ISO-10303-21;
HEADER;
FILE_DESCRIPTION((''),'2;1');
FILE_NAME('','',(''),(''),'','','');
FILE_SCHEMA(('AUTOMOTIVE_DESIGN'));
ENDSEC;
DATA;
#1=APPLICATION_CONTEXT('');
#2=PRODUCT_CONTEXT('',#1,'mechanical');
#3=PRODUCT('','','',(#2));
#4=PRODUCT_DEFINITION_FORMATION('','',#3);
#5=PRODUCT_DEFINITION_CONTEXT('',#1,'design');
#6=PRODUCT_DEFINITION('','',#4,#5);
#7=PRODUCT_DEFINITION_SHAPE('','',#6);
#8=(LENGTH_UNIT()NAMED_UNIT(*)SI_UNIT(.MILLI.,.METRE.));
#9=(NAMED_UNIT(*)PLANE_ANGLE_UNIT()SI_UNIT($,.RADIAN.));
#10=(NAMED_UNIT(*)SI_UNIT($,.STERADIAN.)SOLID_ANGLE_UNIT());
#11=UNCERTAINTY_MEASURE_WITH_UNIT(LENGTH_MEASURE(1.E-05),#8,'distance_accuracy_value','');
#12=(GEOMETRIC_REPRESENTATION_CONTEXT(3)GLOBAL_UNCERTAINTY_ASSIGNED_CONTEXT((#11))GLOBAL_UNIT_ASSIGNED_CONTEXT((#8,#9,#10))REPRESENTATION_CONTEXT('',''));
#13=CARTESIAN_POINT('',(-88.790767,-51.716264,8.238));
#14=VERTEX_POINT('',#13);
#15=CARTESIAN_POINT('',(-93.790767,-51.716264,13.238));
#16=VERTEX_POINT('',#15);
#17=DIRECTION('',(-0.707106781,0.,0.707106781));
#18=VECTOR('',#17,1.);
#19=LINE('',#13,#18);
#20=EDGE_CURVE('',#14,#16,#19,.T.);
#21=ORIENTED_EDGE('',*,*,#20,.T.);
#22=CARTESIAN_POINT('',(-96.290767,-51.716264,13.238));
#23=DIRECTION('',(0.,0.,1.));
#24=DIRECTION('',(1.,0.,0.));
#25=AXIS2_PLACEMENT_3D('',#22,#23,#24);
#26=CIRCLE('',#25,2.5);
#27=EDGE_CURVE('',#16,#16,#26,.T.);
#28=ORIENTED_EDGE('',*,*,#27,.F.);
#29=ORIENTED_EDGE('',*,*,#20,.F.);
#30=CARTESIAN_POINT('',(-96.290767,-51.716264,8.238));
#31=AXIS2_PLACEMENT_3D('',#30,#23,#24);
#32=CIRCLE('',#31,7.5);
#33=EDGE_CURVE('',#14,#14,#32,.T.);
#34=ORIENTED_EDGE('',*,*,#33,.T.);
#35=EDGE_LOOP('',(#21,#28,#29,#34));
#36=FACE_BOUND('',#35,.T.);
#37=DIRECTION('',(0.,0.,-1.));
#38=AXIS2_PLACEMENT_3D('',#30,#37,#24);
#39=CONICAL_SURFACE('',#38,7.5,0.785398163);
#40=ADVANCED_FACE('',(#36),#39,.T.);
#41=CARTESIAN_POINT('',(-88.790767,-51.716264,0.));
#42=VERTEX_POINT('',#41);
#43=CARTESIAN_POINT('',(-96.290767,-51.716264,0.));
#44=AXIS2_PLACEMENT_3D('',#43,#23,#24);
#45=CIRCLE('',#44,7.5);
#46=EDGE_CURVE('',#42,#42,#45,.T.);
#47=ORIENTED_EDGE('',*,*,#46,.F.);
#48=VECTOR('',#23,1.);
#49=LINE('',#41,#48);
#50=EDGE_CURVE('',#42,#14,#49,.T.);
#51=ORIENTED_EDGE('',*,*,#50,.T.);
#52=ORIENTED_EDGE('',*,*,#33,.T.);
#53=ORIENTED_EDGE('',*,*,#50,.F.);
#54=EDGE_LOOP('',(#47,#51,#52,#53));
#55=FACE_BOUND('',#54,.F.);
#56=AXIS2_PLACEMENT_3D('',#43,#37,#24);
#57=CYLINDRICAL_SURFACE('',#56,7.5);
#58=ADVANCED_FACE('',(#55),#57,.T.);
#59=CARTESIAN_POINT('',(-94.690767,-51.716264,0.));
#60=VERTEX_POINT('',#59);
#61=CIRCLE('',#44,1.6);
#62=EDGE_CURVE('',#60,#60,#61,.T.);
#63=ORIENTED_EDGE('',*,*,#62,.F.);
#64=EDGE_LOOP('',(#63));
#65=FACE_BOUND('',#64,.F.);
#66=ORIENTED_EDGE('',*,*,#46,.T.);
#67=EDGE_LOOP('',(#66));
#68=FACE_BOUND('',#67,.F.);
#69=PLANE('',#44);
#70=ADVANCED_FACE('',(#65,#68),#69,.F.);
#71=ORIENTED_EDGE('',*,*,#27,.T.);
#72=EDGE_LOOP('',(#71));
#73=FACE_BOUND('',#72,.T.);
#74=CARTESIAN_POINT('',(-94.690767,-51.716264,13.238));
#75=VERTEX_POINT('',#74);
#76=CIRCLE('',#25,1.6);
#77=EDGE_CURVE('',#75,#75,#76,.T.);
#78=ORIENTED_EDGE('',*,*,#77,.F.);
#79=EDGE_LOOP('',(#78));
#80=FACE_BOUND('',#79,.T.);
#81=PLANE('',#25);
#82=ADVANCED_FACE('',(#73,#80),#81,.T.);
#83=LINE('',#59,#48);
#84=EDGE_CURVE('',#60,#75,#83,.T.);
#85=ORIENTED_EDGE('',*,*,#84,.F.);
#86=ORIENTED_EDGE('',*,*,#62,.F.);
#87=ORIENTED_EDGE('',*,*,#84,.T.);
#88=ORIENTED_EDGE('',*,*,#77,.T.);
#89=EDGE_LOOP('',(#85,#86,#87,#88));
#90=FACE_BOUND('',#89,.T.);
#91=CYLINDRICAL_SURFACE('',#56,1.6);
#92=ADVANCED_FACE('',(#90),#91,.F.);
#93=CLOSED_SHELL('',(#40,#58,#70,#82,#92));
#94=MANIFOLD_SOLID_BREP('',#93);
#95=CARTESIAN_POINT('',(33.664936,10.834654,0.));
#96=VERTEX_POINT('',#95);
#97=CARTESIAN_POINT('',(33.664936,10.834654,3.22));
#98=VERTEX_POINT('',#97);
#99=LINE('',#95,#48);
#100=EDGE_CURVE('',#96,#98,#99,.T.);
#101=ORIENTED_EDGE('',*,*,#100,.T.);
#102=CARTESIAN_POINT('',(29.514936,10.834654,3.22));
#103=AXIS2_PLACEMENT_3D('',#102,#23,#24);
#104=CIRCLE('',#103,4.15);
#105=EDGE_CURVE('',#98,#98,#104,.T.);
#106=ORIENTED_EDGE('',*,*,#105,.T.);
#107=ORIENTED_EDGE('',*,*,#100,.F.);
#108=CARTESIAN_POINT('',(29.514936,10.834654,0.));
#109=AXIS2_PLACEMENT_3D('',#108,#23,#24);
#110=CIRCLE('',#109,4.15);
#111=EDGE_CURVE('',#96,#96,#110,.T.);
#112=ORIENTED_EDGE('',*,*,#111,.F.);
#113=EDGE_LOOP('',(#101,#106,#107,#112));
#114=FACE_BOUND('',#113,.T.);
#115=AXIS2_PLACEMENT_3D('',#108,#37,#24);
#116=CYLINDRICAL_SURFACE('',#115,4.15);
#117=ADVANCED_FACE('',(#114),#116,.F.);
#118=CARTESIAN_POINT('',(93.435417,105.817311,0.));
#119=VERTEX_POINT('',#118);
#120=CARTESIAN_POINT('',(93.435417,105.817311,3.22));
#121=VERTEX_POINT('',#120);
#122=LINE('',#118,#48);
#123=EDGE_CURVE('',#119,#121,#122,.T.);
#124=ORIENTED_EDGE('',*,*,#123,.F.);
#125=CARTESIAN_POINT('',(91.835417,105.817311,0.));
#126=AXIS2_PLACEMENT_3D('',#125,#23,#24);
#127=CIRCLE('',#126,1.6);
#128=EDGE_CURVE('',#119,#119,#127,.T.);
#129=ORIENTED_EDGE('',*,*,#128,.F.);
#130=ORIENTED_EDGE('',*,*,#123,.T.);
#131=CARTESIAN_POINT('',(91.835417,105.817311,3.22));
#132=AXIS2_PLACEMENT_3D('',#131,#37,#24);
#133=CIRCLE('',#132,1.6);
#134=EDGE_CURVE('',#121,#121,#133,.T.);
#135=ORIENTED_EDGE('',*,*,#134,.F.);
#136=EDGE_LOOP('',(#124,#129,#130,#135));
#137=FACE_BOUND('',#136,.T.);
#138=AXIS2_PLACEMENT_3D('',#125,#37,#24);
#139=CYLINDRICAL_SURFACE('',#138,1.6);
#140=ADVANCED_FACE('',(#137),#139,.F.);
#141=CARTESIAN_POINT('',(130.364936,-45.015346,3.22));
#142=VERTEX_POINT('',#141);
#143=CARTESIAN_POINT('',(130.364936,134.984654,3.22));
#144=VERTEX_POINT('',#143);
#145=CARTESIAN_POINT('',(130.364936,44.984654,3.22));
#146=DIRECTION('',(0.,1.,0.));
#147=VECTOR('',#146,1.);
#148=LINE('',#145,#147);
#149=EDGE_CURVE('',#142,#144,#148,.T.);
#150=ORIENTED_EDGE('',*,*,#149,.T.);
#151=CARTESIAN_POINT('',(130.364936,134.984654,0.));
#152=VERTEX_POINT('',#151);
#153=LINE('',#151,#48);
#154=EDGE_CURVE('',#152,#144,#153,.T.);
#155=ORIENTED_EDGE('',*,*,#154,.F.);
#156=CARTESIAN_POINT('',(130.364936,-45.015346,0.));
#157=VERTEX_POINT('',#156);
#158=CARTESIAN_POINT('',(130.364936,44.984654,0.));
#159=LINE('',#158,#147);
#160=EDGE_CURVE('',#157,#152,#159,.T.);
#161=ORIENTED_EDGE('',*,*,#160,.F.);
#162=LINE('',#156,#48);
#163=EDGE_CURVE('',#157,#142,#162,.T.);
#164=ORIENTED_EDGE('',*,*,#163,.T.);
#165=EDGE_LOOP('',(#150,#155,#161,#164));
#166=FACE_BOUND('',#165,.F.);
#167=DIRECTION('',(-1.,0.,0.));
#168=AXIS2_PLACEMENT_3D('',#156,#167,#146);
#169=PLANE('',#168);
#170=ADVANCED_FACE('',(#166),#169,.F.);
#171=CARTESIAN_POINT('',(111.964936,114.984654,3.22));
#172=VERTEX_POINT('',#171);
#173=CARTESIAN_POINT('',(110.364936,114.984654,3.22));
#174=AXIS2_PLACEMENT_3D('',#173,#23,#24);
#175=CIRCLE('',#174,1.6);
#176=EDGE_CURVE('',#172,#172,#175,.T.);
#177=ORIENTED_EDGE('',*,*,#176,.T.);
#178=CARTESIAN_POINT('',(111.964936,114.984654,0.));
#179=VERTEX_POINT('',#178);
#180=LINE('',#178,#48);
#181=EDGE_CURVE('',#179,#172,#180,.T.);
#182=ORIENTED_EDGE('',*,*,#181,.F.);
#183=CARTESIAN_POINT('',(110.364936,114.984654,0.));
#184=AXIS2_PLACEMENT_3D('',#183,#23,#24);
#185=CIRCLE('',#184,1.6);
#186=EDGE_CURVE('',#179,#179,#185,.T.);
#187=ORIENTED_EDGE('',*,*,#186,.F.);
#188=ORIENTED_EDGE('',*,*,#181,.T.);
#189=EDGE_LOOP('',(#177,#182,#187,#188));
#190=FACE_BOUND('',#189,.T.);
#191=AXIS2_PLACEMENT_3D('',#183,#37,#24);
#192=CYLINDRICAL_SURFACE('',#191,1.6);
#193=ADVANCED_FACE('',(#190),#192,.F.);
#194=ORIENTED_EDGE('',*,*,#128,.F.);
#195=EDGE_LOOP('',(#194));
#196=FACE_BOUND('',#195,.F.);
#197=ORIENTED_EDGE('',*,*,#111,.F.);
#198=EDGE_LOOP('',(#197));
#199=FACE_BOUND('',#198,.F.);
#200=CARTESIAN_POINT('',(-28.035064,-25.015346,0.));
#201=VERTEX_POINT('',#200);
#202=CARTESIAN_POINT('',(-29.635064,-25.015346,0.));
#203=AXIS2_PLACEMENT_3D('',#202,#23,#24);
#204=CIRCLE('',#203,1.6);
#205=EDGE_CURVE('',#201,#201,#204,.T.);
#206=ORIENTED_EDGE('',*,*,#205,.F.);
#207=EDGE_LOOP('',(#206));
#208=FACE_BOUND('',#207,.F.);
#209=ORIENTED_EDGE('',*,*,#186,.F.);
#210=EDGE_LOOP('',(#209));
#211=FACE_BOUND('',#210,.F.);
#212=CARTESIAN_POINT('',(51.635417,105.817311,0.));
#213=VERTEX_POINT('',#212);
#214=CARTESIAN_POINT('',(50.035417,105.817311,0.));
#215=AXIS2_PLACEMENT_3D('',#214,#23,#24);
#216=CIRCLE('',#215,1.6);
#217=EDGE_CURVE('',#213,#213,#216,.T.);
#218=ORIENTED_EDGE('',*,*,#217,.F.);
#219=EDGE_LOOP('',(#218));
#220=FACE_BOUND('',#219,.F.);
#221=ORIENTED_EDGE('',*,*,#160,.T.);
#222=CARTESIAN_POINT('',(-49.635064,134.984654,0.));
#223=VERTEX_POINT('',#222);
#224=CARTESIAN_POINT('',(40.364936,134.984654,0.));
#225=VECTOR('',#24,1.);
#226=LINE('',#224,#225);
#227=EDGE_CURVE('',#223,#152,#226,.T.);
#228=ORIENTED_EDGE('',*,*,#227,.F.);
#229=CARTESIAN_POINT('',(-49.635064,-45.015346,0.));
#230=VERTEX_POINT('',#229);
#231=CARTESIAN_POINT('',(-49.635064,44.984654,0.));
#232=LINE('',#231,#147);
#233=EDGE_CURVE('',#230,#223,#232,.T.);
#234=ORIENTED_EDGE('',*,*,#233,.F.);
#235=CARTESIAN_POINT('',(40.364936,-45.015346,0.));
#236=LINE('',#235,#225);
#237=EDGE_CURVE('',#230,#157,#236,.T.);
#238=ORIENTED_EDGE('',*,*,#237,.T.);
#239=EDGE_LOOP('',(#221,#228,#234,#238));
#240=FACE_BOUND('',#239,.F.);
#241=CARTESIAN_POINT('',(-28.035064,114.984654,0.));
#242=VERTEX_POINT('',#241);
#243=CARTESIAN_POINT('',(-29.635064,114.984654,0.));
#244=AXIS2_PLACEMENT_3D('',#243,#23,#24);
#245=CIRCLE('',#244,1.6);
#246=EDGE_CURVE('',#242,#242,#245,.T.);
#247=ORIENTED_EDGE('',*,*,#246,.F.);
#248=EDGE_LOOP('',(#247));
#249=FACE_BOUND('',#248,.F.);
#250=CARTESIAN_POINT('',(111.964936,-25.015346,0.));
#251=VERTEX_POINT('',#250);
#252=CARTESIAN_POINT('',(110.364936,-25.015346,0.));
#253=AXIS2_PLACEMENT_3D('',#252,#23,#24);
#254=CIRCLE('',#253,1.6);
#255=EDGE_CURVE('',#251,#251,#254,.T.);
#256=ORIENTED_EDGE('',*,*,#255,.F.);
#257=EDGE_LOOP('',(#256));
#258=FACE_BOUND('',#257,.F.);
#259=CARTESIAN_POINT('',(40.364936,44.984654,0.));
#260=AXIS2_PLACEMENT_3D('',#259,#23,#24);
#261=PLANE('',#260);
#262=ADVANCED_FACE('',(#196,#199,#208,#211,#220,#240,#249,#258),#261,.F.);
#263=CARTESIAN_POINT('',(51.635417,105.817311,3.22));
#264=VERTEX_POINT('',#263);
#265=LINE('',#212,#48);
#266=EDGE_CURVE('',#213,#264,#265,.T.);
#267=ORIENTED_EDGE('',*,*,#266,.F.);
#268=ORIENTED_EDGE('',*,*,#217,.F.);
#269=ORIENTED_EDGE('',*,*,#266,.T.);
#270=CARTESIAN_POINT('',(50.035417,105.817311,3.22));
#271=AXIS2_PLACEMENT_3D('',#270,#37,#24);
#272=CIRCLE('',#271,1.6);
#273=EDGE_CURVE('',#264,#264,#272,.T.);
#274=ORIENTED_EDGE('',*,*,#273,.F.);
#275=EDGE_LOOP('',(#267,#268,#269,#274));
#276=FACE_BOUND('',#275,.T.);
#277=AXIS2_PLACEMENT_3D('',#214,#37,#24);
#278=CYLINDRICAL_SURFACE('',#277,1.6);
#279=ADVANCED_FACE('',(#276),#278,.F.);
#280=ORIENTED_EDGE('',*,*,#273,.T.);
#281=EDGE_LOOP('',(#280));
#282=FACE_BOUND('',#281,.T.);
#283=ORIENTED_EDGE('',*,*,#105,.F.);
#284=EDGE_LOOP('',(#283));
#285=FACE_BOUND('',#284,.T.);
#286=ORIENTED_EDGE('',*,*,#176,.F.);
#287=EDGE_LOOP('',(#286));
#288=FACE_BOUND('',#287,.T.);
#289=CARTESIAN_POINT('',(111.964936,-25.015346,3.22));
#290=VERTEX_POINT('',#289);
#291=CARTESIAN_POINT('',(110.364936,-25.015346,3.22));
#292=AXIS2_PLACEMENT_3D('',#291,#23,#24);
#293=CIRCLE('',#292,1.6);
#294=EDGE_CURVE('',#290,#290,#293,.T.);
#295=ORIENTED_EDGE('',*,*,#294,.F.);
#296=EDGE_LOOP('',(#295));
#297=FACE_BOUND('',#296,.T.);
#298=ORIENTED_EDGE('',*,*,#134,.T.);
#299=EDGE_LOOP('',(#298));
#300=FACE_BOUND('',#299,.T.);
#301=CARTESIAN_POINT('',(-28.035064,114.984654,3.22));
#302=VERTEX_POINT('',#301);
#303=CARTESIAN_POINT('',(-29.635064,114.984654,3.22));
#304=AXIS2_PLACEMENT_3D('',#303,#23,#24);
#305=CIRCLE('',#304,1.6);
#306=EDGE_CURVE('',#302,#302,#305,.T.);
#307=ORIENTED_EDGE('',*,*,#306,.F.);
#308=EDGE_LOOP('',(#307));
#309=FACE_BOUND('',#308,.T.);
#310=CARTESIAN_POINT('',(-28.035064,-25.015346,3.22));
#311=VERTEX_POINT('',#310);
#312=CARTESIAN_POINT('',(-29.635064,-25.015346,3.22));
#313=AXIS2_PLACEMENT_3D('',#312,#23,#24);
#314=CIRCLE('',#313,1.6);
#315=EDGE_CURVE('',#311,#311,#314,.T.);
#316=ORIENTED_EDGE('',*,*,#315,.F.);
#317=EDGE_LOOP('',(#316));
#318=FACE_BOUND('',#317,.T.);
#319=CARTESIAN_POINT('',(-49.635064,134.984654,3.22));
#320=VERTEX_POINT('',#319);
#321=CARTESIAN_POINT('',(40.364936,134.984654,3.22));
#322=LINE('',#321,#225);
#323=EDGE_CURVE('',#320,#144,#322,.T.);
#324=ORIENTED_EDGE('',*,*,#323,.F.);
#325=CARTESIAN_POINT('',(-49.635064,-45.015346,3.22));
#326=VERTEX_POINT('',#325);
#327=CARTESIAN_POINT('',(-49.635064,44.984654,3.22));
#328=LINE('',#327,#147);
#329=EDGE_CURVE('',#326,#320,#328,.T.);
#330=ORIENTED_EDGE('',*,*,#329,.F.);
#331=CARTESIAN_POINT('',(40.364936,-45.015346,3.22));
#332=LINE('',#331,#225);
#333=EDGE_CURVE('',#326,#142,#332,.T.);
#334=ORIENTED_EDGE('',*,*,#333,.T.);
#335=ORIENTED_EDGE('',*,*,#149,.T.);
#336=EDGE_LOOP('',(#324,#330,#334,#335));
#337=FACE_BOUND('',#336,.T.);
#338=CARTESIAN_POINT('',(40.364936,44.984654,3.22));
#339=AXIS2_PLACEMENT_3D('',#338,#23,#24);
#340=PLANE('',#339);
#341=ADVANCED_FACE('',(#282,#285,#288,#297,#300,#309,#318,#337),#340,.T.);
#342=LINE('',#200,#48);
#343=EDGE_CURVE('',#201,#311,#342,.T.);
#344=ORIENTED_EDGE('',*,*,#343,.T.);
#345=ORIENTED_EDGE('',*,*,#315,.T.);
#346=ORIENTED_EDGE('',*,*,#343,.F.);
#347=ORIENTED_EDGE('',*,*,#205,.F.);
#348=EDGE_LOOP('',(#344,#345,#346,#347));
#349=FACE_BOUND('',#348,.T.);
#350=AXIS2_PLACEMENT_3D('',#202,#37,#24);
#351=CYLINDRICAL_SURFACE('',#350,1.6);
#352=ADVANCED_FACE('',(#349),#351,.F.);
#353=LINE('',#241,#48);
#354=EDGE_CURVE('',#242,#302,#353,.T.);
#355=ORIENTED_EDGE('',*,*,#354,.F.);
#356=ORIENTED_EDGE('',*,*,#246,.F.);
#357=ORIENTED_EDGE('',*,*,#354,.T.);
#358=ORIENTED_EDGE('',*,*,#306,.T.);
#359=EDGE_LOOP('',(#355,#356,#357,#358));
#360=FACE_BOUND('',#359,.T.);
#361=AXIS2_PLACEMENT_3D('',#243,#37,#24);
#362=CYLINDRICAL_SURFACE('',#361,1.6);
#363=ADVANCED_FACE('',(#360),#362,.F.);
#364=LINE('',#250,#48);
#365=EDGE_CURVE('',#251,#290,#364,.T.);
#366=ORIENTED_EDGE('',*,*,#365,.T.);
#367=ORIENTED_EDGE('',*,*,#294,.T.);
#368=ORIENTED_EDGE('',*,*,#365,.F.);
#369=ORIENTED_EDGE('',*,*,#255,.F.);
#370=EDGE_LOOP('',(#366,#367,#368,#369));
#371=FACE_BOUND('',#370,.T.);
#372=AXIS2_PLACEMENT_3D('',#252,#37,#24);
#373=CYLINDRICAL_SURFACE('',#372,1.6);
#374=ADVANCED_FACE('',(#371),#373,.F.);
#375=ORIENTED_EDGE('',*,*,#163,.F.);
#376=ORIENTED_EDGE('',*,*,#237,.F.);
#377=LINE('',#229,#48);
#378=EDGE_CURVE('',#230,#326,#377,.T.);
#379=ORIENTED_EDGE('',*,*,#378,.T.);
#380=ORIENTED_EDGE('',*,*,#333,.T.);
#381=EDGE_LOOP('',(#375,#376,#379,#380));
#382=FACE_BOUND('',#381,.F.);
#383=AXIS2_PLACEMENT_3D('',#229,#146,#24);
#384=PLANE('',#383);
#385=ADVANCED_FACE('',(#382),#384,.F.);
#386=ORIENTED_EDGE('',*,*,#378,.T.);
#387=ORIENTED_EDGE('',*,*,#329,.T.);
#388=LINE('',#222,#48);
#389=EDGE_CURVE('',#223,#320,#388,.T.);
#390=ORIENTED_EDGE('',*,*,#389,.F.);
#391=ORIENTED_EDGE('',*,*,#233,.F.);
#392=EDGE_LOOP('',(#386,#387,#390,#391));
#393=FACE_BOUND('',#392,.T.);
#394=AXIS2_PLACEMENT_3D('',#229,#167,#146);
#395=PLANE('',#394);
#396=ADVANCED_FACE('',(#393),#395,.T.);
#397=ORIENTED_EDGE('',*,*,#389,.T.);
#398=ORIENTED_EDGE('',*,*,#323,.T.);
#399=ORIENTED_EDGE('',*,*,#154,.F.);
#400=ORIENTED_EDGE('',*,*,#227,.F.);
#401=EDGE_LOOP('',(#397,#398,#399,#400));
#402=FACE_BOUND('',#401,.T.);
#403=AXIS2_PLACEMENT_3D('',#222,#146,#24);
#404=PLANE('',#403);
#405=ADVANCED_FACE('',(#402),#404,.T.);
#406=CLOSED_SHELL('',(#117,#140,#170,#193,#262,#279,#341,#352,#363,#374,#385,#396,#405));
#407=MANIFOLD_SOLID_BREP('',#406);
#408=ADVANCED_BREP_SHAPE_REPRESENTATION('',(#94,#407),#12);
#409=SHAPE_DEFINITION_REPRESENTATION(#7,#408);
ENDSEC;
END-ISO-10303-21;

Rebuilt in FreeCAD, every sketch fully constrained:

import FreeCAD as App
import Part
import Sketcher
from FreeCAD import Vector
Q = App.Units.Quantity


def edges_at(feature, points):
    """Names of the edges that pass closest to the given points."""
    edges = feature.Shape.Edges
    near = lambda p: min(range(len(edges)), key=lambda i: edges[i].distToShape(Part.Vertex(*p))[0])
    return sorted({f"Edge{near(p) + 1}" for p in points})

doc = App.newDocument("Part")
body = doc.addObject("PartDesign::Body", "Body")

# Sketch on XY plane
sketch1 = body.newObject("Sketcher::SketchObject", "Sketch")
sketch1.AttachmentSupport = (doc.getObject("XY_Plane"), [""])
sketch1.MapMode = "FlatFace"
sketch1.addGeometry([
    Part.LineSegment(Vector(-49.6, 135, 0), Vector(-49.6, -45, 0)),  # 0
    Part.LineSegment(Vector(-49.6, -45, 0), Vector(130.4, -45, 0)),  # 1
    Part.LineSegment(Vector(130.4, -45, 0), Vector(130.4, 135, 0)),  # 2
    Part.LineSegment(Vector(130.4, 135, 0), Vector(-49.6, 135, 0)),  # 3
    Part.Circle(Vector(-29.6, -25, 0), Vector(0, 0, 1), 1.6),  # 4
    Part.Circle(Vector(29.5, 10.8, 0), Vector(0, 0, 1), 4.2),  # 5
    Part.Circle(Vector(110.4, -25, 0), Vector(0, 0, 1), 1.6),  # 6
    Part.Circle(Vector(-29.6, 115, 0), Vector(0, 0, 1), 1.6),  # 7
    Part.Circle(Vector(110.4, 115, 0), Vector(0, 0, 1), 1.6),  # 8
], False)
sketch1.addConstraint([
    Sketcher.Constraint("Coincident", 0, 2, 1, 1),
    Sketcher.Constraint("Coincident", 1, 2, 2, 1),
    Sketcher.Constraint("Coincident", 2, 2, 3, 1),
    Sketcher.Constraint("Coincident", 3, 2, 0, 1),
    Sketcher.Constraint("Vertical", 0),
    Sketcher.Constraint("Horizontal", 1),
    Sketcher.Constraint("Vertical", 2),
    Sketcher.Constraint("Horizontal", 3),
    Sketcher.Constraint("Equal", 4, 6),
    Sketcher.Constraint("Equal", 6, 7),
    Sketcher.Constraint("Equal", 7, 8),
    Sketcher.Constraint("Horizontal", 4, 3, 6, 3),
    Sketcher.Constraint("Horizontal", 7, 3, 8, 3),
    Sketcher.Constraint("Vertical", 4, 3, 7, 3),
    Sketcher.Constraint("Vertical", 6, 3, 8, 3),
    Sketcher.Constraint("Equal", 3, 0),
    Sketcher.Constraint("Diameter", 4, Q("3.2 mm")),
    Sketcher.Constraint("Diameter", 5, Q("8.3 mm")),
    Sketcher.Constraint("DistanceX", 1, 1, 1, 2, Q("180 mm")),
    Sketcher.Constraint("DistanceX", 4, 3, 6, 3, Q("140 mm")),
    Sketcher.Constraint("DistanceY", 4, 3, 7, 3, Q("140 mm")),
    Sketcher.Constraint("DistanceX", 0, 2, 4, 3, Q("20 mm")),
    Sketcher.Constraint("DistanceY", 0, 2, 4, 3, Q("20 mm")),
    Sketcher.Constraint("DistanceX", 4, 3, 5, 3, Q("59.15 mm")),
    Sketcher.Constraint("DistanceY", 4, 3, 5, 3, Q("35.85 mm")),
    Sketcher.Constraint("DistanceX", 4, 3, -1, 1, Q("29.635064 mm")),
    Sketcher.Constraint("DistanceY", 4, 3, -1, 1, Q("25.015346 mm")),
])
pad1 = body.newObject("PartDesign::Pad", "Pad")
pad1.Profile = sketch1
pad1.Length = 3.22

# Sketch on XY plane
sketch2 = body.newObject("Sketcher::SketchObject", "Sketch001")
sketch2.AttachmentSupport = (doc.getObject("XY_Plane"), [""])
sketch2.MapMode = "FlatFace"
sketch2.addGeometry([
    Part.Circle(Vector(50, 105.8, 0), Vector(0, 0, 1), 1.6),
    Part.Circle(Vector(91.8, 105.8, 0), Vector(0, 0, 1), 1.6),
], False)
sketch2.addConstraint([
    Sketcher.Constraint("Equal", 0, 1),
    Sketcher.Constraint("Horizontal", 0, 3, 1, 3),
    Sketcher.Constraint("Diameter", 0, Q("3.2 mm")),
    Sketcher.Constraint("DistanceX", 0, 3, 1, 3, Q("41.8 mm")),
    Sketcher.Constraint("DistanceY", -1, 1, 0, 3, Q("105.817311 mm")),
    Sketcher.Constraint("DistanceX", -1, 1, 0, 3, Q("50.035417 mm")),
])
pocket1 = body.newObject("PartDesign::Pocket", "Pocket")
pocket1.Profile = sketch2
pocket1.Length = 25
pocket1.Reversed = True
body2 = doc.addObject("PartDesign::Body", "Body001")

# Sketch on XY plane
sketch3 = body2.newObject("Sketcher::SketchObject", "Sketch002")
sketch3.AttachmentSupport = (doc.getObject("XY_Plane001"), [""])
sketch3.MapMode = "FlatFace"
sketch3.addGeometry([
    Part.Circle(Vector(-96.3, -51.7, 0), Vector(0, 0, 1), 7.5),
    Part.Circle(Vector(-96.3, -51.7, 0), Vector(0, 0, 1), 1.6),
], False)
sketch3.addConstraint([
    Sketcher.Constraint("Coincident", 1, 3, 0, 3),
    Sketcher.Constraint("Diameter", 0, Q("15 mm")),
    Sketcher.Constraint("Diameter", 1, Q("3.2 mm")),
    Sketcher.Constraint("DistanceX", 0, 3, -1, 1, Q("96.290767 mm")),
    Sketcher.Constraint("DistanceY", 0, 3, -1, 1, Q("51.716264 mm")),
])
pad2 = body2.newObject("PartDesign::Pad", "Pad001")
pad2.Profile = sketch3
pad2.Length = 13.238
doc.recompute()

chamfer = body2.newObject("PartDesign::Chamfer", "Chamfer")
chamfer.Base = (pad2, edges_at(pad2, [(-103.791, -51.716, 13.238)]))
chamfer.Size = 5

doc.recompute()
